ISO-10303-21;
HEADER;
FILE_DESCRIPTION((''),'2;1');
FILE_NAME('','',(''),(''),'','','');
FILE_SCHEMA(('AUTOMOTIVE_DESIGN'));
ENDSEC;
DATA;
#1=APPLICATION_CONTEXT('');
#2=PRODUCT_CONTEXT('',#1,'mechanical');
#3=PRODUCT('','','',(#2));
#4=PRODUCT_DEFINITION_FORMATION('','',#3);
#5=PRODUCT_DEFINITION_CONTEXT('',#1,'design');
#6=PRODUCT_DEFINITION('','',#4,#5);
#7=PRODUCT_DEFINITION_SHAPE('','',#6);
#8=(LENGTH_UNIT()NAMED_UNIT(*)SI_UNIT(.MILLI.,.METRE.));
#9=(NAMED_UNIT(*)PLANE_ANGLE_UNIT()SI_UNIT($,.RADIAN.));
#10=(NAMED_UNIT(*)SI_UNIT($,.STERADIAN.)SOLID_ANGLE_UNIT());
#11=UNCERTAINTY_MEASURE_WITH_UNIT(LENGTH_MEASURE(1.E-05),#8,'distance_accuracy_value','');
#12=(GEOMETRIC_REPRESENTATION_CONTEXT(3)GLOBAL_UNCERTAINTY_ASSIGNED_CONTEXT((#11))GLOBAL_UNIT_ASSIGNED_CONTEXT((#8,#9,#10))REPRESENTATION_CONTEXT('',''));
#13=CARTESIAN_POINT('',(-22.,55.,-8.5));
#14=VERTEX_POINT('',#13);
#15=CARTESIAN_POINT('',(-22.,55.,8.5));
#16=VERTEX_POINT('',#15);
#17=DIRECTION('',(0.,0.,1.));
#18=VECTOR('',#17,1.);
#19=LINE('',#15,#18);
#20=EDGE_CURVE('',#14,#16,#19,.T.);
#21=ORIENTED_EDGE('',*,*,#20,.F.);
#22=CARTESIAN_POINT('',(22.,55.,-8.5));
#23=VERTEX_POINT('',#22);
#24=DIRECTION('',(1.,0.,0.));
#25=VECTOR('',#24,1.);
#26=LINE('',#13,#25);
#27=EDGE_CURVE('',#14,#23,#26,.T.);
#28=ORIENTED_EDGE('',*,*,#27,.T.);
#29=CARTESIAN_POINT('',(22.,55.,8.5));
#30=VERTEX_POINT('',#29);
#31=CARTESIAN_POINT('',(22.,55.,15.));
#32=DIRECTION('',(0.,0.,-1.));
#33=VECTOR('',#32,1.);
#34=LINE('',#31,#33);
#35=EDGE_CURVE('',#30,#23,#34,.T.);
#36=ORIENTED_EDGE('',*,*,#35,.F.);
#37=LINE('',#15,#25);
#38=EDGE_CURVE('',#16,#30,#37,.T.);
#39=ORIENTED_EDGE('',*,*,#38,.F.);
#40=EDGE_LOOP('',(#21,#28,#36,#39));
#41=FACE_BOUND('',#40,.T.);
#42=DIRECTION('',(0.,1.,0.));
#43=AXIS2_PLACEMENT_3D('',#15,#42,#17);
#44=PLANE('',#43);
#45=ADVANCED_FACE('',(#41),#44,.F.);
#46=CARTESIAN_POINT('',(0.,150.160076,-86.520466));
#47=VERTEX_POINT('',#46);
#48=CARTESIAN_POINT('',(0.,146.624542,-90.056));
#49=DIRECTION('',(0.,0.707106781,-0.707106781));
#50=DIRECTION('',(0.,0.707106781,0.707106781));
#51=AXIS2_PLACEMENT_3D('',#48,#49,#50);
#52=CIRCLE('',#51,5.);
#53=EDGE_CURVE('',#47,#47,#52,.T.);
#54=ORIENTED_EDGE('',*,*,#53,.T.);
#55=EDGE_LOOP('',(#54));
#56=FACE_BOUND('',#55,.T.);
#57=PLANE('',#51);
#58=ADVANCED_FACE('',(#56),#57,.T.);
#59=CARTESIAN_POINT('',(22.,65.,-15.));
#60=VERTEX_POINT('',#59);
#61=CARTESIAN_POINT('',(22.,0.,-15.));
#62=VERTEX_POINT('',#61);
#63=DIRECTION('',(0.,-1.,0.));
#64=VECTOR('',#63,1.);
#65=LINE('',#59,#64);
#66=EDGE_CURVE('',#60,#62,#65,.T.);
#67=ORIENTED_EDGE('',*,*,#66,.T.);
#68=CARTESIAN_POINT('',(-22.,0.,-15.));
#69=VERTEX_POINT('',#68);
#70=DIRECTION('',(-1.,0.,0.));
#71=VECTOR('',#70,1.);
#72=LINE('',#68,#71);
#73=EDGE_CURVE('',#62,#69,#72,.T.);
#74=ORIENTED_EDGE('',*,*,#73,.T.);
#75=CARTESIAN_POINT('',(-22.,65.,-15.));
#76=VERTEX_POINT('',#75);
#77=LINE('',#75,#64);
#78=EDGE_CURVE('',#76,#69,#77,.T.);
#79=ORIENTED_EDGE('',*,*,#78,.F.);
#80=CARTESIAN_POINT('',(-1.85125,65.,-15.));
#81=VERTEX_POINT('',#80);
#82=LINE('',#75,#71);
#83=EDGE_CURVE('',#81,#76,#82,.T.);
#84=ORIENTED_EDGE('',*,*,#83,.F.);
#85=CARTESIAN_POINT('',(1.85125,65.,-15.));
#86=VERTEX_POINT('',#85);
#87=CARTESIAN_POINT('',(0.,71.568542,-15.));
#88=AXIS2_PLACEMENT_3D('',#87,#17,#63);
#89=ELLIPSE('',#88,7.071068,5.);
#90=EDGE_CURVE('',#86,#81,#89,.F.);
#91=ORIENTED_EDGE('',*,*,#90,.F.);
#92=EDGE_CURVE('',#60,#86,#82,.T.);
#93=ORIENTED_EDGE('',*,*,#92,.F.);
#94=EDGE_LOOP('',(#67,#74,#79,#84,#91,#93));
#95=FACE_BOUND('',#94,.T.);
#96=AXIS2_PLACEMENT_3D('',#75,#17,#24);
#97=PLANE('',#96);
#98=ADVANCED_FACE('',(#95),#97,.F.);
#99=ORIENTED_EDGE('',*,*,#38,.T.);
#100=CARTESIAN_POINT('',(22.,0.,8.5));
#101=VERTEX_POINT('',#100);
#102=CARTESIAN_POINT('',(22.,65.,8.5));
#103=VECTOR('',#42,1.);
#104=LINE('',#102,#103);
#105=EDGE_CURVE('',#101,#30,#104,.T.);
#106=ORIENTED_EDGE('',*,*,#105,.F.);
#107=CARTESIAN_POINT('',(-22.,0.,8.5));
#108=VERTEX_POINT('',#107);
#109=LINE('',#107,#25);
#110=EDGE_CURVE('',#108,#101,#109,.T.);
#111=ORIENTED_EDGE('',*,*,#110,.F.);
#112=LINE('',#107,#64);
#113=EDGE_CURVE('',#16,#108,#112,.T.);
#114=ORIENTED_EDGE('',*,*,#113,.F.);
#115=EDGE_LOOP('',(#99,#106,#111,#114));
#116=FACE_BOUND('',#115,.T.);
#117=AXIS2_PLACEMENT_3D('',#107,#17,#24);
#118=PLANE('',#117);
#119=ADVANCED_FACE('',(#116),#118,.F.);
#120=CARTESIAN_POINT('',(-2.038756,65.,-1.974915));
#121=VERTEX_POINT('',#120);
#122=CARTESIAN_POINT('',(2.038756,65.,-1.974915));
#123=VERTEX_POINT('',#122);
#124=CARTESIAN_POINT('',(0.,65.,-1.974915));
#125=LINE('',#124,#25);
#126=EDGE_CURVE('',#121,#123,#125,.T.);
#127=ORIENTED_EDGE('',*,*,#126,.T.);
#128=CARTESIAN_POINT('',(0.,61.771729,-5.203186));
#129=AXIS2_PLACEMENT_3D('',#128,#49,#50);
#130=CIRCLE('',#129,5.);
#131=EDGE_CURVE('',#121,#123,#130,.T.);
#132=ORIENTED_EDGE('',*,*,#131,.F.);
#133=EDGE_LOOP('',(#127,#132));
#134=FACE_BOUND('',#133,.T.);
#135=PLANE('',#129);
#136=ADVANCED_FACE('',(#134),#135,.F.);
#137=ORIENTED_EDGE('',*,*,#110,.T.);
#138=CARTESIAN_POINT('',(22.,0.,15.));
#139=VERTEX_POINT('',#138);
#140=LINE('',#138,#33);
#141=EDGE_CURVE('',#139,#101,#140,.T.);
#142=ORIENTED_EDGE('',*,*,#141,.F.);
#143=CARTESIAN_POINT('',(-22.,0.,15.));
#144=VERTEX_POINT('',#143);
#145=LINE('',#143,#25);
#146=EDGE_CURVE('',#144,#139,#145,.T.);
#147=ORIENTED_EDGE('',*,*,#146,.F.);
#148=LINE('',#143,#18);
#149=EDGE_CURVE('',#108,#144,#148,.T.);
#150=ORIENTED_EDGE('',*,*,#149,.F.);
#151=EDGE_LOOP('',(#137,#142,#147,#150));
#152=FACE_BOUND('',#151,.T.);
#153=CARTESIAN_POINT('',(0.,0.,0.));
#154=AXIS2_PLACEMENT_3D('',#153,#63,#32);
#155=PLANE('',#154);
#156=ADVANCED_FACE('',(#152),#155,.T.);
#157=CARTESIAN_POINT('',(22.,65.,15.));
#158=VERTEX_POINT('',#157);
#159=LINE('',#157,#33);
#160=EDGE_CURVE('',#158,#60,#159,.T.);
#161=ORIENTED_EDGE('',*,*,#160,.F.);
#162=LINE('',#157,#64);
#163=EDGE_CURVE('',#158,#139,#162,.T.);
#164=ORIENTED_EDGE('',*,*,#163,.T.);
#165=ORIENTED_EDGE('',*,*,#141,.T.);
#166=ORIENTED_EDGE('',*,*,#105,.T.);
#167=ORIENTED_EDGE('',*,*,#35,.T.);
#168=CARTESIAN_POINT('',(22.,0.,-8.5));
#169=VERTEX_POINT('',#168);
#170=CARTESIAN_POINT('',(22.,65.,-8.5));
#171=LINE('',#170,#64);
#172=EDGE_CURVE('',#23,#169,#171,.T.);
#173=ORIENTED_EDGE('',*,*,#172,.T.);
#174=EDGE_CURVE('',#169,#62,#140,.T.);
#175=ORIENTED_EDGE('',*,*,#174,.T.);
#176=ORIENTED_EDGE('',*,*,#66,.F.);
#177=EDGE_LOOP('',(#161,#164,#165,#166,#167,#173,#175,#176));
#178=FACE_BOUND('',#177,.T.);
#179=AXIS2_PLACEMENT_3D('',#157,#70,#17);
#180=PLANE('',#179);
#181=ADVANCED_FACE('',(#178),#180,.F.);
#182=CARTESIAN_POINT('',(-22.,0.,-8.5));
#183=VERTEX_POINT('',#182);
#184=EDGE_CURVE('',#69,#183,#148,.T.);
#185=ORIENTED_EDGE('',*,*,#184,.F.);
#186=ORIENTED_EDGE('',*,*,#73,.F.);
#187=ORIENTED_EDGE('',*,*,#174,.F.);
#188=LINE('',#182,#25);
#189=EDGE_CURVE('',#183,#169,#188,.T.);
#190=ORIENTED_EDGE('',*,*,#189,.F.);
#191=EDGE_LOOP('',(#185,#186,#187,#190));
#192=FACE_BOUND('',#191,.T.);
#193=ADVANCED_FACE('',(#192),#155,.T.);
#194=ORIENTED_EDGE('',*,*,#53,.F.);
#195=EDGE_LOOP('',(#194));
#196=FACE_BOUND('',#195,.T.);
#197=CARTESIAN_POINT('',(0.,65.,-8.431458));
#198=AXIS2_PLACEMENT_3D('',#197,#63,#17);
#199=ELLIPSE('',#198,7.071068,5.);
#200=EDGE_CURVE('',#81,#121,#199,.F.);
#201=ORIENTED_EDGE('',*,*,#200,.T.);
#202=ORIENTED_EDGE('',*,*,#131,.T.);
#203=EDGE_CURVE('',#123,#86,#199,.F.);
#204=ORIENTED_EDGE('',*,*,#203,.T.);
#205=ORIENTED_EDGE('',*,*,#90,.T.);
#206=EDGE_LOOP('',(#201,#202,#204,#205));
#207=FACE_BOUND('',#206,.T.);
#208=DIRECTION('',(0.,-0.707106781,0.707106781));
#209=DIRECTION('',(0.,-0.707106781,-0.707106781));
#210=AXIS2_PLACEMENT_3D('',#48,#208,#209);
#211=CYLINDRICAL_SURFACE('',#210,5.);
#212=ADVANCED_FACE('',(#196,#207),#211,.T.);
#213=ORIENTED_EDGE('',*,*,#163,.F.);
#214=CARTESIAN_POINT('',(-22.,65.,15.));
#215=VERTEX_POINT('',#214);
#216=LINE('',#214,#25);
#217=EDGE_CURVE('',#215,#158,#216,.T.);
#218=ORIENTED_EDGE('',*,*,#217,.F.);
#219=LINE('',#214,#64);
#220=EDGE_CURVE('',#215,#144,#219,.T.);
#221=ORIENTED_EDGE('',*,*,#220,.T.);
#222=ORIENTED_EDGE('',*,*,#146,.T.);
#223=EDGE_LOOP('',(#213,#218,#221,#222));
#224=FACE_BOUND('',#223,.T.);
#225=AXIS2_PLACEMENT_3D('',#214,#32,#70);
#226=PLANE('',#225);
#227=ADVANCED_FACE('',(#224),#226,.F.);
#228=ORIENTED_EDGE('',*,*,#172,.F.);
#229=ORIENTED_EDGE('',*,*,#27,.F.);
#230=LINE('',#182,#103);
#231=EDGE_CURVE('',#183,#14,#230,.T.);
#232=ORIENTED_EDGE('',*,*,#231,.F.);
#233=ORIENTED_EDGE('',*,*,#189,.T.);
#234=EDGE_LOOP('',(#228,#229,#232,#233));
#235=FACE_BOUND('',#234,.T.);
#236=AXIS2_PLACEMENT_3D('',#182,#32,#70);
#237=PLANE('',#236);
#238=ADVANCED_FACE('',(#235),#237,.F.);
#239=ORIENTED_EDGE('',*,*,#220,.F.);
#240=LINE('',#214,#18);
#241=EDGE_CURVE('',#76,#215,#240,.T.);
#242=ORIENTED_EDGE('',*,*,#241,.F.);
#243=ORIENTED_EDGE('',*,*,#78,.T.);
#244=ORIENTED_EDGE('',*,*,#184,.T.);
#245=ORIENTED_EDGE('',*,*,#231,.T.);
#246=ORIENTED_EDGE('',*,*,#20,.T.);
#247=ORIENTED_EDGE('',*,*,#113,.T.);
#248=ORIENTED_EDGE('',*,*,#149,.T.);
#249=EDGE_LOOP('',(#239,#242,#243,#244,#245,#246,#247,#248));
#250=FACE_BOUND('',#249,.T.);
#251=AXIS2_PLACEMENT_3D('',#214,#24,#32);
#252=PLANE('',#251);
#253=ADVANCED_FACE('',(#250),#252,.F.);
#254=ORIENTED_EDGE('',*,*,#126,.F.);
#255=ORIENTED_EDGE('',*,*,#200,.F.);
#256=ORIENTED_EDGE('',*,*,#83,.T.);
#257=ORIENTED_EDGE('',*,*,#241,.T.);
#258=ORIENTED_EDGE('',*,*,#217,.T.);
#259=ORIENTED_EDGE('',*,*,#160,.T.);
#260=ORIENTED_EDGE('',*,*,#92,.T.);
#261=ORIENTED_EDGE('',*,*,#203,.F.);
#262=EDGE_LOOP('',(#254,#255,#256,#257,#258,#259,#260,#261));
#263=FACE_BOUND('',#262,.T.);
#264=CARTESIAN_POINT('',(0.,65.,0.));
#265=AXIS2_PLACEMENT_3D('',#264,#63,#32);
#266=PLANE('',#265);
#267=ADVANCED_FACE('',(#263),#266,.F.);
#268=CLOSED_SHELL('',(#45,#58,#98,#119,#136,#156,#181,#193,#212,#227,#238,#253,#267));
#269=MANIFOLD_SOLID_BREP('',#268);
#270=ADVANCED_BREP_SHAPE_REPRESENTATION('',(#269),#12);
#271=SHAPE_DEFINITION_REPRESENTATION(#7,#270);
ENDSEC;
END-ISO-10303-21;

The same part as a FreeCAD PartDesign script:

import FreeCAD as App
import Part
import Sketcher

V = App.Vector


def add_polygon(sketch, points):
    """Adds a closed chain of lines whose ends are joined by coincident constraints."""
    first, n = sketch.GeometryCount, len(points)
    for a, b in zip(points, points[1:] + points[:1]):
        sketch.addGeometry(Part.LineSegment(App.Vector(*a, 0), App.Vector(*b, 0)), False)
    for i in range(n):
        sketch.addConstraint(Sketcher.Constraint("Coincident", first + i, 2, first + (i + 1) % n, 1))

doc = App.newDocument("Part")
body = doc.addObject("PartDesign::Body", "Body")

sketch1 = body.newObject("Sketcher::SketchObject", "Sketch")
sketch1.AttachmentSupport = (doc.getObject("XZ_Plane"), [""])
sketch1.MapMode = "FlatFace"
add_polygon(sketch1, [(-22, -15), (-22, 15), (22, 15), (22, -15)])
sketch1.addConstraint([
    Sketcher.Constraint("Vertical", 0),
    Sketcher.Constraint("Horizontal", 1),
    Sketcher.Constraint("Vertical", 2),
    Sketcher.Constraint("Horizontal", 3),
    Sketcher.Constraint("Symmetric", 0, 2, 2, 2, -1, 1),
    Sketcher.Constraint("DistanceX", 1, 1, 1, 2, 44.0),
    Sketcher.Constraint("DistanceY", 0, 1, 0, 2, 30.0),
])
pad1 = body.newObject("PartDesign::Pad", "Pad")
pad1.Profile = sketch1
pad1.Length = 65
pad1.Reversed = True

sketch2 = body.newObject("Sketcher::SketchObject", "Sketch001")
sketch2.AttachmentSupport = (doc.getObject("YZ_Plane"), [""])
sketch2.MapMode = "FlatFace"
sketch2.AttachmentOffset = App.Placement(V(0, 0, 22), App.Rotation())
add_polygon(sketch2, [(55, 8.5), (0, 8.5), (0, -8.5), (55, -8.5)])
sketch2.addConstraint([
    Sketcher.Constraint("Horizontal", 0),
    Sketcher.Constraint("Vertical", 1),
    Sketcher.Constraint("Horizontal", 2),
    Sketcher.Constraint("Vertical", 3),
    Sketcher.Constraint("Symmetric", 0, 2, 1, 2, -1, 1),
    Sketcher.Constraint("DistanceX", 0, 2, 0, 1, 55.0),
    Sketcher.Constraint("DistanceY", 1, 2, 1, 1, 17.0),
])
pocket1 = body.newObject("PartDesign::Pocket", "Pocket")
pocket1.Profile = sketch2
pocket1.Type = "ThroughAll"
pocket1.Midplane = True

sketch3 = body.newObject("Sketcher::SketchObject", "Sketch002")
sketch3.Placement = App.Placement(V(0, 33.487457, -33.487457), App.Rotation(V(0, -0.707106781, -0.707106781), V(-0.999999999, 0, 0), V(0, 0.707106781, -0.707106781), "ZXY"))
sketch3.addGeometry(Part.Circle(V(-40, 0, 0), V(0, 0, 1), 5), False)
sketch3.addConstraint([
    Sketcher.Constraint("PointOnObject", 0, 3, -1),
    Sketcher.Constraint("Diameter", 0, 10.0),
    Sketcher.Constraint("DistanceX", 0, 3, -1, 1, 40.0),
])
pad2 = body.newObject("PartDesign::Pad", "Pad001")
pad2.Profile = sketch3
pad2.Length = 120

sketch4 = body.newObject("Sketcher::SketchObject", "Sketch003")
sketch4.Placement = App.Placement(V(0, 33.487457, -33.487457), App.Rotation(V(0, -0.707106781, -0.707106781), V(-0.999999999, 0, 0), V(0, 0.707106781, -0.707106781), "ZXY"))
sketch4.addGeometry(Part.Circle(V(-40, 0, 0), V(0, 0, 1), 5), False)
sketch4.addConstraint([
    Sketcher.Constraint("PointOnObject", 0, 3, -1),
    Sketcher.Constraint("Diameter", 0, 10.0),
    Sketcher.Constraint("DistanceX", 0, 3, -1, 1, 40.0),
])
pad3 = body.newObject("PartDesign::Pad", "Pad002")
pad3.Profile = sketch4
pad3.Length = 120

doc.recompute()
